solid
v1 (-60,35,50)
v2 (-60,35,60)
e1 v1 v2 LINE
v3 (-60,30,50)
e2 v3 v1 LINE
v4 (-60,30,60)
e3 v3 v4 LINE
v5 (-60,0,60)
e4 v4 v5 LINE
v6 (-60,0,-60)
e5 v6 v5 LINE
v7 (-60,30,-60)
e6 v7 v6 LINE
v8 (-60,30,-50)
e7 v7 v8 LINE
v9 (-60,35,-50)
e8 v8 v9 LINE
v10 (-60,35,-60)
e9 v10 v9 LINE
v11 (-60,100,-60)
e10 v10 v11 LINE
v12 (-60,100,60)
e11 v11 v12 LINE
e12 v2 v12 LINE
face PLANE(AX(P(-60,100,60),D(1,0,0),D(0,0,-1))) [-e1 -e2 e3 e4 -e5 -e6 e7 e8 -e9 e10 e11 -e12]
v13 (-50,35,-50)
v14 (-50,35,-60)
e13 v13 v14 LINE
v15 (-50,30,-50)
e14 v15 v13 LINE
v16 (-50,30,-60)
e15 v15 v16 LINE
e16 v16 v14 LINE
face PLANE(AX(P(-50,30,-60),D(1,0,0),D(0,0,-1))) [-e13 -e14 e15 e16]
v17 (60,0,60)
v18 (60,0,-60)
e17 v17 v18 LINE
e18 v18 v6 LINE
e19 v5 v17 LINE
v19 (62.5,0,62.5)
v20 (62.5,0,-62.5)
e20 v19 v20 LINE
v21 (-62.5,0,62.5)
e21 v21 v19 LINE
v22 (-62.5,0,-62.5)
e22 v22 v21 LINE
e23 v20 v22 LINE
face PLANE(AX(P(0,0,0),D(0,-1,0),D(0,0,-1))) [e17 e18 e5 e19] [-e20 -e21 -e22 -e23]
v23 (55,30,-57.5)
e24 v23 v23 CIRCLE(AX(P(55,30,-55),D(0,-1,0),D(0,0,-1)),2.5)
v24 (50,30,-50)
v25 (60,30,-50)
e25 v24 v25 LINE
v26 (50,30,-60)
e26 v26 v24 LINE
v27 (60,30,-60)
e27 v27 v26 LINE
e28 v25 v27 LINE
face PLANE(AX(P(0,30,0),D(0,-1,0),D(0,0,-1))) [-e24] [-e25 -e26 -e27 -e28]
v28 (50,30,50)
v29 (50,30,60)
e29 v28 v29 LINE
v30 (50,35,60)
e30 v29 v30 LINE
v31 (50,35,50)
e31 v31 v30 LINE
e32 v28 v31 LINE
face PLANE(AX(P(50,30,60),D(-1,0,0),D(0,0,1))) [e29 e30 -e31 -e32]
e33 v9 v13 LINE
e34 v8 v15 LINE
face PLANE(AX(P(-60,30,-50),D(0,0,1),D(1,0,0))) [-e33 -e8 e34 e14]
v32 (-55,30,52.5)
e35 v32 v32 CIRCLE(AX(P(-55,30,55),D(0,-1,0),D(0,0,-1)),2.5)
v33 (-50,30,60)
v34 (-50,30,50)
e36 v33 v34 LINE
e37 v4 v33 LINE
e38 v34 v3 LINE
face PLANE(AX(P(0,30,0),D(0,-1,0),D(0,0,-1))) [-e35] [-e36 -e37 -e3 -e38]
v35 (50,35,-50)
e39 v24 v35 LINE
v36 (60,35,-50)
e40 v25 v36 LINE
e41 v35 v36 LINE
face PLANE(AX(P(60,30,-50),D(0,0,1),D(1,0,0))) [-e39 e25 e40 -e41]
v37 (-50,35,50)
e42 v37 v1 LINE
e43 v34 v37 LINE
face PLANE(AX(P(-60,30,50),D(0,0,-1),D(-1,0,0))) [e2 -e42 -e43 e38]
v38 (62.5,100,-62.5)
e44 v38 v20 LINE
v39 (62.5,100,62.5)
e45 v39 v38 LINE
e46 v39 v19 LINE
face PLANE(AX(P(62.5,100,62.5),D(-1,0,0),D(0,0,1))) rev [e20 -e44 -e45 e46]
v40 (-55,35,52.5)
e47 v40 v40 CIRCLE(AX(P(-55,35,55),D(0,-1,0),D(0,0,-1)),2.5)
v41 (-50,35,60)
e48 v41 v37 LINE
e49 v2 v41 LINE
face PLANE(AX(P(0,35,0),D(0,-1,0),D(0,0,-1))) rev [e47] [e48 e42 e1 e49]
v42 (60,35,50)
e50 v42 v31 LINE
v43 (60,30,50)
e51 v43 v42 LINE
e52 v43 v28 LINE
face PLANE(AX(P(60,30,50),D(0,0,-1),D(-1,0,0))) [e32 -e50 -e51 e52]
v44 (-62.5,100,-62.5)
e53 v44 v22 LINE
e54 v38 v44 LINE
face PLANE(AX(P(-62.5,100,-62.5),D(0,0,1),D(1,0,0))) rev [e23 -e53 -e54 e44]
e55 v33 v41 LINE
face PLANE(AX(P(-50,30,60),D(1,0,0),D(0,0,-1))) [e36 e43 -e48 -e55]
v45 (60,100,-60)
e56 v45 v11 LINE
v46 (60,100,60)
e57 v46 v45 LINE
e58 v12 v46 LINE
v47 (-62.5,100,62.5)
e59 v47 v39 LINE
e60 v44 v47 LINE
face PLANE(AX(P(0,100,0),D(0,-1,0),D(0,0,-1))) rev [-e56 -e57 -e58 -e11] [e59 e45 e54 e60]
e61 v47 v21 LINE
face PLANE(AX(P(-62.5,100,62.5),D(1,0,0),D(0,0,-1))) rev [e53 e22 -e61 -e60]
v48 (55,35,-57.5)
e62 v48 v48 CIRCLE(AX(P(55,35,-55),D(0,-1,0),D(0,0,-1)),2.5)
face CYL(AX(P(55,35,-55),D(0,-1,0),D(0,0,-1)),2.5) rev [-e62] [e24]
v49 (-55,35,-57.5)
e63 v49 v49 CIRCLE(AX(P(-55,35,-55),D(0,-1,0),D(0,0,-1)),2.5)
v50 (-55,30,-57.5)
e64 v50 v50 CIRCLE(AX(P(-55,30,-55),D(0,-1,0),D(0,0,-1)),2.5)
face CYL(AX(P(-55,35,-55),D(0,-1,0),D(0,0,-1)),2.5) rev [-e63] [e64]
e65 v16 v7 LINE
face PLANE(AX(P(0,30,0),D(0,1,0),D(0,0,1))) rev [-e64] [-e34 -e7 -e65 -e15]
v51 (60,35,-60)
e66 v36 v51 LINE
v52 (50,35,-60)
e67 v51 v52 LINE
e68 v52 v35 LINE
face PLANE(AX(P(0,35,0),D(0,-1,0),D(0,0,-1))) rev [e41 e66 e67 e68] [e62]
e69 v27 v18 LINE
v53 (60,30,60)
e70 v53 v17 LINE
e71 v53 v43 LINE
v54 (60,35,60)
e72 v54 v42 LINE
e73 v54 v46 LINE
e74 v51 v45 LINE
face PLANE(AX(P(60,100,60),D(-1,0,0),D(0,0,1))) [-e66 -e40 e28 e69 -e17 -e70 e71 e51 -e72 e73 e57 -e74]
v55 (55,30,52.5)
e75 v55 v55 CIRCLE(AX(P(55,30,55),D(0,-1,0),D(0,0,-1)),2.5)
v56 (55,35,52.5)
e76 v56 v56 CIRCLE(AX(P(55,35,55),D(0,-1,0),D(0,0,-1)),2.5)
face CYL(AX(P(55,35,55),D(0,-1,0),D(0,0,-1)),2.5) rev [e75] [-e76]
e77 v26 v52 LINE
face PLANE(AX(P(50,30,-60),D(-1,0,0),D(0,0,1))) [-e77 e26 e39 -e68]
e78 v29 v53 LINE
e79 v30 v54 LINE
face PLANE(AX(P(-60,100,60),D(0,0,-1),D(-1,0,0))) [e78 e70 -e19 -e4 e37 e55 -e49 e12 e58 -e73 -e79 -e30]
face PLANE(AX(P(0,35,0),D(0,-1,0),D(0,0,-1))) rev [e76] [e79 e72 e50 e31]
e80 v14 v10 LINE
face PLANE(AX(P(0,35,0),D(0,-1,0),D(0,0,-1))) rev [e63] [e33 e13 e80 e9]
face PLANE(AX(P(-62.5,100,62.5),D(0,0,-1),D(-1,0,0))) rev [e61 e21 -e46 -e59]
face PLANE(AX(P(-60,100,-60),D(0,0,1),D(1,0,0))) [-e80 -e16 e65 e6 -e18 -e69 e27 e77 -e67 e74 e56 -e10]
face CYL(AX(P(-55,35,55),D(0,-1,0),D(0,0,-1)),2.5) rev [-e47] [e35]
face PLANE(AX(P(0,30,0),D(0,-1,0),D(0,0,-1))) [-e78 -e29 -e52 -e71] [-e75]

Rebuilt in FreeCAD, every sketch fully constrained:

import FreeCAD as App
import Part
import Sketcher
Q = App.Units.Quantity

doc = App.newDocument("Part")
body = doc.addObject("PartDesign::Body", "Body")

# Sketch on XZ plane
sketch1 = body.newObject("Sketcher::SketchObject", "Sketch")
sketch1.AttachmentSupport = (doc.getObject("XZ_Plane"), [""])
sketch1.MapMode = "FlatFace"
sketch1.addGeometry([
    Part.LineSegment(App.Vector(-62, -62, 0), App.Vector(-62, 62, 0)),  # 0
    Part.LineSegment(App.Vector(-62, 62, 0), App.Vector(62, 62, 0)),  # 1
    Part.LineSegment(App.Vector(62, 62, 0), App.Vector(62, -62, 0)),  # 2
    Part.LineSegment(App.Vector(62, -62, 0), App.Vector(-62, -62, 0)),  # 3
    Part.LineSegment(App.Vector(60, 60, 0), App.Vector(-60, 60, 0)),  # 4
    Part.LineSegment(App.Vector(-60, 60, 0), App.Vector(-60, -60, 0)),  # 5
    Part.LineSegment(App.Vector(-60, -60, 0), App.Vector(60, -60, 0)),  # 6
    Part.LineSegment(App.Vector(60, -60, 0), App.Vector(60, 60, 0)),  # 7
], False)
sketch1.addConstraint([
    Sketcher.Constraint("Coincident", 0, 2, 1, 1),
    Sketcher.Constraint("Coincident", 1, 2, 2, 1),
    Sketcher.Constraint("Coincident", 2, 2, 3, 1),
    Sketcher.Constraint("Coincident", 3, 2, 0, 1),
    Sketcher.Constraint("Coincident", 4, 2, 5, 1),
    Sketcher.Constraint("Coincident", 5, 2, 6, 1),
    Sketcher.Constraint("Coincident", 6, 2, 7, 1),
    Sketcher.Constraint("Coincident", 7, 2, 4, 1),
    Sketcher.Constraint("Vertical", 0),
    Sketcher.Constraint("Horizontal", 1),
    Sketcher.Constraint("Vertical", 2),
    Sketcher.Constraint("Horizontal", 3),
    Sketcher.Constraint("Horizontal", 4),
    Sketcher.Constraint("Vertical", 5),
    Sketcher.Constraint("Horizontal", 6),
    Sketcher.Constraint("Vertical", 7),
    Sketcher.Constraint("Symmetric", 0, 2, 2, 2, -1, 1),
    Sketcher.Constraint("Symmetric", 4, 2, 6, 2, -1, 1),
    Sketcher.Constraint("Equal", 3, 0),
    Sketcher.Constraint("Equal", 6, 5),
    Sketcher.Constraint("DistanceX", 1, 1, 1, 2, Q("125 mm")),
    Sketcher.Constraint("DistanceX", 4, 2, 4, 1, Q("120 mm")),
])
pad1 = body.newObject("PartDesign::Pad", "Pad")
pad1.Profile = sketch1
pad1.Length = 100
pad1.Reversed = True

# Sketch on XZ plane
sketch2 = body.newObject("Sketcher::SketchObject", "Sketch001")
sketch2.AttachmentSupport = (doc.getObject("XZ_Plane"), [""])
sketch2.MapMode = "FlatFace"
sketch2.AttachmentOffset = App.Placement(App.Vector(0, 0, -100), App.Rotation())
sketch2.addGeometry([
    Part.LineSegment(App.Vector(50, -60, 0), App.Vector(50, -50, 0)),  # 0
    Part.LineSegment(App.Vector(50, -50, 0), App.Vector(60, -50, 0)),  # 1
    Part.LineSegment(App.Vector(60, -50, 0), App.Vector(60, -60, 0)),  # 2
    Part.LineSegment(App.Vector(60, -60, 0), App.Vector(50, -60, 0)),  # 3
    Part.LineSegment(App.Vector(-60, -60, 0), App.Vector(-60, -50, 0)),  # 4
    Part.LineSegment(App.Vector(-60, -50, 0), App.Vector(-50, -50, 0)),  # 5
    Part.LineSegment(App.Vector(-50, -50, 0), App.Vector(-50, -60, 0)),  # 6
    Part.LineSegment(App.Vector(-50, -60, 0), App.Vector(-60, -60, 0)),  # 7
    Part.LineSegment(App.Vector(50, 50, 0), App.Vector(50, 60, 0)),  # 8
    Part.LineSegment(App.Vector(50, 60, 0), App.Vector(60, 60, 0)),  # 9
    Part.LineSegment(App.Vector(60, 60, 0), App.Vector(60, 50, 0)),  # 10
    Part.LineSegment(App.Vector(60, 50, 0), App.Vector(50, 50, 0)),  # 11
    Part.LineSegment(App.Vector(-60, 50, 0), App.Vector(-60, 60, 0)),  # 12
    Part.LineSegment(App.Vector(-60, 60, 0), App.Vector(-50, 60, 0)),  # 13
    Part.LineSegment(App.Vector(-50, 60, 0), App.Vector(-50, 50, 0)),  # 14
    Part.LineSegment(App.Vector(-50, 50, 0), App.Vector(-60, 50, 0)),  # 15
], False)
sketch2.addConstraint([
    Sketcher.Constraint("Coincident", 0, 2, 1, 1),
    Sketcher.Constraint("Coincident", 1, 2, 2, 1),
    Sketcher.Constraint("Coincident", 2, 2, 3, 1),
    Sketcher.Constraint("Coincident", 3, 2, 0, 1),
    Sketcher.Constraint("Coincident", 4, 2, 5, 1),
    Sketcher.Constraint("Coincident", 5, 2, 6, 1),
    Sketcher.Constraint("Coincident", 6, 2, 7, 1),
    Sketcher.Constraint("Coincident", 7, 2, 4, 1),
    Sketcher.Constraint("Coincident", 8, 2, 9, 1),
    Sketcher.Constraint("Coincident", 9, 2, 10, 1),
    Sketcher.Constraint("Coincident", 10, 2, 11, 1),
    Sketcher.Constraint("Coincident", 11, 2, 8, 1),
    Sketcher.Constraint("Coincident", 12, 2, 13, 1),
    Sketcher.Constraint("Coincident", 13, 2, 14, 1),
    Sketcher.Constraint("Coincident", 14, 2, 15, 1),
    Sketcher.Constraint("Coincident", 15, 2, 12, 1),
    Sketcher.Constraint("Vertical", 0),
    Sketcher.Constraint("Horizontal", 1),
    Sketcher.Constraint("Vertical", 2),
    Sketcher.Constraint("Horizontal", 3),
    Sketcher.Constraint("Vertical", 4),
    Sketcher.Constraint("Horizontal", 5),
    Sketcher.Constraint("Vertical", 6),
    Sketcher.Constraint("Horizontal", 7),
    Sketcher.Constraint("Vertical", 8),
    Sketcher.Constraint("Horizontal", 9),
    Sketcher.Constraint("Vertical", 10),
    Sketcher.Constraint("Horizontal", 11),
    Sketcher.Constraint("Vertical", 12),
    Sketcher.Constraint("Horizontal", 13),
    Sketcher.Constraint("Vertical", 14),
    Sketcher.Constraint("Horizontal", 15),
    Sketcher.Constraint("Symmetric", 6, 2, 8, 2, -1, 1),
    Sketcher.Constraint("Symmetric", 4, 2, 10, 2, -1, 1),
    Sketcher.Constraint("Symmetric", 2, 2, 12, 2, -1, 1),
    Sketcher.Constraint("Symmetric", 0, 2, 14, 2, -1, 1),
    Sketcher.Constraint("Symmetric", 1, 2, 4, 2, -2),
    Sketcher.Constraint("Symmetric", 3, 2, 6, 2, -2),
    Sketcher.Constraint("Equal", 15, 0),
    Sketcher.Constraint("DistanceX", 1, 1, 1, 2, Q("10 mm")),
    Sketcher.Constraint("DistanceX", -1, 1, 0, 2, Q("50 mm")),
    Sketcher.Constraint("DistanceY", 0, 2, -1, 1, Q("50 mm")),
])
pad2 = body.newObject("PartDesign::Pad", "Pad001")
pad2.Profile = sketch2
pad2.Length = 70

# Sketch on XZ plane
sketch3 = body.newObject("Sketcher::SketchObject", "Sketch002")
sketch3.AttachmentSupport = (doc.getObject("XZ_Plane"), [""])
sketch3.MapMode = "FlatFace"
sketch3.AttachmentOffset = App.Placement(App.Vector(0, 0, -30), App.Rotation())
sketch3.addGeometry([
    Part.Circle(App.Vector(-55, 55, 0), App.Vector(0, 0, 1), 2.5),
    Part.Circle(App.Vector(55, 55, 0), App.Vector(0, 0, 1), 2.5),
    Part.Circle(App.Vector(55, -55, 0), App.Vector(0, 0, 1), 2.5),
    Part.Circle(App.Vector(-55, -55, 0), App.Vector(0, 0, 1), 2.5),
], False)
sketch3.addConstraint([
    Sketcher.Constraint("Equal", 0, 1),
    Sketcher.Constraint("Equal", 1, 2),
    Sketcher.Constraint("Equal", 2, 3),
    Sketcher.Constraint("Symmetric", 0, 3, 2, 3, -1, 1),
    Sketcher.Constraint("Symmetric", 1, 3, 3, 3, -1, 1),
    Sketcher.Constraint("Symmetric", 0, 3, 1, 3, -2),
    Sketcher.Constraint("Diameter", 0, Q("5 mm")),
    Sketcher.Constraint("DistanceX", 0, 3, -1, 1, Q("55 mm")),
    Sketcher.Constraint("DistanceY", -1, 1, 0, 3, Q("55 mm")),
])
pocket1 = body.newObject("PartDesign::Pocket", "Pocket")
pocket1.Profile = sketch3
pocket1.Length = 5

# Sketch on XZ plane
sketch4 = body.newObject("Sketcher::SketchObject", "Sketch003")
sketch4.AttachmentSupport = (doc.getObject("XZ_Plane"), [""])
sketch4.MapMode = "FlatFace"
sketch4.AttachmentOffset = App.Placement(App.Vector(0, 0, -100), App.Rotation())
sketch4.addGeometry([
    Part.LineSegment(App.Vector(-60, -60, 0), App.Vector(-60, 60, 0)),
    Part.LineSegment(App.Vector(-60, 60, 0), App.Vector(60, 60, 0)),
    Part.LineSegment(App.Vector(60, 60, 0), App.Vector(60, -60, 0)),
    Part.LineSegment(App.Vector(60, -60, 0), App.Vector(-60, -60, 0)),
], False)
sketch4.addConstraint([
    Sketcher.Constraint("Coincident", 0, 2, 1, 1),
    Sketcher.Constraint("Coincident", 1, 2, 2, 1),
    Sketcher.Constraint("Coincident", 2, 2, 3, 1),
    Sketcher.Constraint("Coincident", 3, 2, 0, 1),
    Sketcher.Constraint("Vertical", 0),
    Sketcher.Constraint("Horizontal", 1),
    Sketcher.Constraint("Vertical", 2),
    Sketcher.Constraint("Horizontal", 3),
    Sketcher.Constraint("Symmetric", 0, 2, 2, 2, -1, 1),
    Sketcher.Constraint("Equal", 3, 0),
    Sketcher.Constraint("DistanceX", 1, 1, 1, 2, Q("120 mm")),
])
pocket2 = body.newObject("PartDesign::Pocket", "Pocket001")
pocket2.Profile = sketch4
pocket2.Length = 65
pocket2.Reversed = True

doc.recompute()
